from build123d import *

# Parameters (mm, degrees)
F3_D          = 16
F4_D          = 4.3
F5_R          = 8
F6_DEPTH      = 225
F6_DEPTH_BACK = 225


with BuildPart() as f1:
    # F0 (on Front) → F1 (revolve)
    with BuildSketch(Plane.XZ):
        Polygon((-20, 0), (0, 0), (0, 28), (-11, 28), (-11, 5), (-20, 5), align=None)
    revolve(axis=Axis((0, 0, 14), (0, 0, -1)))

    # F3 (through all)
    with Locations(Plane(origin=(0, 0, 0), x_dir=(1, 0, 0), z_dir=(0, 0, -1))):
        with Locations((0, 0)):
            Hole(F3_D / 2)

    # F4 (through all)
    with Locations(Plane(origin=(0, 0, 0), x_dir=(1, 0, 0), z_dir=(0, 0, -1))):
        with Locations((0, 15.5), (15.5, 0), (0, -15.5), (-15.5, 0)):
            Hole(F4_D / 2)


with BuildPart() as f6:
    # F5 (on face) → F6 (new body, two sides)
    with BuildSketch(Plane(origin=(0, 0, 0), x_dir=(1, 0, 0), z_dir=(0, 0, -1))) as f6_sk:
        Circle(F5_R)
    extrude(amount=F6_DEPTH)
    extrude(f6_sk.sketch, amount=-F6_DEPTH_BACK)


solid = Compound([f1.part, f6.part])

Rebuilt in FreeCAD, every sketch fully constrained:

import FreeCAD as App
import Part
import Sketcher
from FreeCAD import Vector
Q = App.Units.Quantity

doc = App.newDocument("Part")
body = doc.addObject("PartDesign::Body", "Body")

# Sketch on XZ plane
sketch1 = doc.addObject("Sketcher::SketchObject", "Sketch")
body.addObject(sketch1)
sketch1.AttachmentSupport = (doc.XZ_Plane, [""])
sketch1.MapMode = "FlatFace"
sketch1.addGeometry(Part.LineSegment(Vector(-20, 0, 0), Vector(0, 0, 0)), False)
sketch1.addGeometry(Part.LineSegment(Vector(0, 0, 0), Vector(0, 28, 0)), False)
sketch1.addGeometry(Part.LineSegment(Vector(0, 28, 0), Vector(-11, 28, 0)), False)
sketch1.addGeometry(Part.LineSegment(Vector(-11, 28, 0), Vector(-11, 5, 0)), False)
sketch1.addGeometry(Part.LineSegment(Vector(-11, 5, 0), Vector(-20, 5, 0)), False)
sketch1.addGeometry(Part.LineSegment(Vector(-20, 5, 0), Vector(-20, 0, 0)), False)
sketch1.addConstraint(Sketcher.Constraint("Coincident", 0, 2, 1, 1))
sketch1.addConstraint(Sketcher.Constraint("Coincident", 1, 2, 2, 1))
sketch1.addConstraint(Sketcher.Constraint("Coincident", 2, 2, 3, 1))
sketch1.addConstraint(Sketcher.Constraint("Coincident", 3, 2, 4, 1))
sketch1.addConstraint(Sketcher.Constraint("Coincident", 4, 2, 5, 1))
sketch1.addConstraint(Sketcher.Constraint("Coincident", 5, 2, 0, 1))
sketch1.addConstraint(Sketcher.Constraint("Horizontal", 0))
sketch1.addConstraint(Sketcher.Constraint("Vertical", 1))
sketch1.addConstraint(Sketcher.Constraint("Horizontal", 2))
sketch1.addConstraint(Sketcher.Constraint("Vertical", 3))
sketch1.addConstraint(Sketcher.Constraint("Horizontal", 4))
sketch1.addConstraint(Sketcher.Constraint("Vertical", 5))
sketch1.addConstraint(Sketcher.Constraint("Coincident", 0, 2, -1, 1))
sketch1.addConstraint(Sketcher.Constraint("DistanceX", 0, 1, 0, 2, Q("20 mm")))
sketch1.addConstraint(Sketcher.Constraint("DistanceX", 2, 2, 2, 1, Q("11 mm")))
sketch1.addConstraint(Sketcher.Constraint("DistanceY", 1, 1, 1, 2, Q("28 mm")))
sketch1.addConstraint(Sketcher.Constraint("DistanceY", 3, 2, 3, 1, Q("23 mm")))
revolution = doc.addObject("PartDesign::Revolution", "Revolution")
body.addObject(revolution)
revolution.Profile = sketch1
revolution.ReferenceAxis = (sketch1, ["V_Axis"])
revolution.Angle = 360

# Sketch on XY plane
sketch2 = doc.addObject("Sketcher::SketchObject", "Sketch001")
body.addObject(sketch2)
sketch2.AttachmentSupport = (doc.XY_Plane, [""])
sketch2.MapMode = "FlatFace"
sketch2.addGeometry(Part.Circle(Vector(0, 0, 0), Vector(0, 0, 1), 8), False)
sketch2.addConstraint(Sketcher.Constraint("Coincident", 0, 3, -1, 1))
sketch2.addConstraint(Sketcher.Constraint("Diameter", 0, Q("16 mm")))
doc.recompute()
hole = doc.addObject("PartDesign::Hole", "Hole")
body.addObject(hole)
hole.Profile = sketch2
hole.ThreadType = "None"
hole.Diameter = 16
hole.DepthType = "ThroughAll"
hole.Reversed = True

# Sketch on XY plane
sketch3 = doc.addObject("Sketcher::SketchObject", "Sketch002")
body.addObject(sketch3)
sketch3.AttachmentSupport = (doc.XY_Plane, [""])
sketch3.MapMode = "FlatFace"
sketch3.addGeometry(Part.Circle(Vector(0, -15.5, 0), Vector(0, 0, 1), 2.1), False)
sketch3.addGeometry(Part.Circle(Vector(15.5, 0, 0), Vector(0, 0, 1), 2.1), False)
sketch3.addGeometry(Part.Circle(Vector(0, 15.5, 0), Vector(0, 0, 1), 2.1), False)
sketch3.addGeometry(Part.Circle(Vector(-15.5, 0, 0), Vector(0, 0, 1), 2.1), False)
sketch3.addConstraint(Sketcher.Constraint("Equal", 0, 1))
sketch3.addConstraint(Sketcher.Constraint("Equal", 1, 2))
sketch3.addConstraint(Sketcher.Constraint("Equal", 2, 3))
sketch3.addConstraint(Sketcher.Constraint("Symmetric", 0, 3, 2, 3, -1, 1))
sketch3.addConstraint(Sketcher.Constraint("Symmetric", 1, 3, 3, 3, -1, 1))
sketch3.addConstraint(Sketcher.Constraint("PointOnObject", 0, 3, -2))
sketch3.addConstraint(Sketcher.Constraint("PointOnObject", 1, 3, -1))
sketch3.addConstraint(Sketcher.Constraint("Diameter", 0, Q("4.3 mm")))
sketch3.addConstraint(Sketcher.Constraint("DistanceY", 0, 3, 2, 3, Q("31 mm")))
sketch3.addConstraint(Sketcher.Constraint("DistanceX", 3, 3, 1, 3, Q("31 mm")))
doc.recompute()
hole2 = doc.addObject("PartDesign::Hole", "Hole001")
body.addObject(hole2)
hole2.Profile = sketch3
hole2.ThreadType = "None"
hole2.Diameter = 4.3
hole2.DepthType = "ThroughAll"
hole2.Reversed = True
body2 = doc.addObject("PartDesign::Body", "Body001")

# Sketch on XY plane
sketch4 = doc.addObject("Sketcher::SketchObject", "Sketch003")
body2.addObject(sketch4)
sketch4.AttachmentSupport = (doc.getObject("XY_Plane001"), [""])
sketch4.MapMode = "FlatFace"
sketch4.addGeometry(Part.Circle(Vector(0, 0, 0), Vector(0, 0, 1), 8), False)
sketch4.addConstraint(Sketcher.Constraint("Coincident", 0, 3, -1, 1))
sketch4.addConstraint(Sketcher.Constraint("Diameter", 0, Q("16 mm")))
pad1 = doc.addObject("PartDesign::Pad", "Pad")
body2.addObject(pad1)
pad1.Profile = sketch4
pad1.Type = "TwoLengths"
pad1.Length = 225
pad1.Length2 = 225
pad1.Reversed = True

doc.recompute()
